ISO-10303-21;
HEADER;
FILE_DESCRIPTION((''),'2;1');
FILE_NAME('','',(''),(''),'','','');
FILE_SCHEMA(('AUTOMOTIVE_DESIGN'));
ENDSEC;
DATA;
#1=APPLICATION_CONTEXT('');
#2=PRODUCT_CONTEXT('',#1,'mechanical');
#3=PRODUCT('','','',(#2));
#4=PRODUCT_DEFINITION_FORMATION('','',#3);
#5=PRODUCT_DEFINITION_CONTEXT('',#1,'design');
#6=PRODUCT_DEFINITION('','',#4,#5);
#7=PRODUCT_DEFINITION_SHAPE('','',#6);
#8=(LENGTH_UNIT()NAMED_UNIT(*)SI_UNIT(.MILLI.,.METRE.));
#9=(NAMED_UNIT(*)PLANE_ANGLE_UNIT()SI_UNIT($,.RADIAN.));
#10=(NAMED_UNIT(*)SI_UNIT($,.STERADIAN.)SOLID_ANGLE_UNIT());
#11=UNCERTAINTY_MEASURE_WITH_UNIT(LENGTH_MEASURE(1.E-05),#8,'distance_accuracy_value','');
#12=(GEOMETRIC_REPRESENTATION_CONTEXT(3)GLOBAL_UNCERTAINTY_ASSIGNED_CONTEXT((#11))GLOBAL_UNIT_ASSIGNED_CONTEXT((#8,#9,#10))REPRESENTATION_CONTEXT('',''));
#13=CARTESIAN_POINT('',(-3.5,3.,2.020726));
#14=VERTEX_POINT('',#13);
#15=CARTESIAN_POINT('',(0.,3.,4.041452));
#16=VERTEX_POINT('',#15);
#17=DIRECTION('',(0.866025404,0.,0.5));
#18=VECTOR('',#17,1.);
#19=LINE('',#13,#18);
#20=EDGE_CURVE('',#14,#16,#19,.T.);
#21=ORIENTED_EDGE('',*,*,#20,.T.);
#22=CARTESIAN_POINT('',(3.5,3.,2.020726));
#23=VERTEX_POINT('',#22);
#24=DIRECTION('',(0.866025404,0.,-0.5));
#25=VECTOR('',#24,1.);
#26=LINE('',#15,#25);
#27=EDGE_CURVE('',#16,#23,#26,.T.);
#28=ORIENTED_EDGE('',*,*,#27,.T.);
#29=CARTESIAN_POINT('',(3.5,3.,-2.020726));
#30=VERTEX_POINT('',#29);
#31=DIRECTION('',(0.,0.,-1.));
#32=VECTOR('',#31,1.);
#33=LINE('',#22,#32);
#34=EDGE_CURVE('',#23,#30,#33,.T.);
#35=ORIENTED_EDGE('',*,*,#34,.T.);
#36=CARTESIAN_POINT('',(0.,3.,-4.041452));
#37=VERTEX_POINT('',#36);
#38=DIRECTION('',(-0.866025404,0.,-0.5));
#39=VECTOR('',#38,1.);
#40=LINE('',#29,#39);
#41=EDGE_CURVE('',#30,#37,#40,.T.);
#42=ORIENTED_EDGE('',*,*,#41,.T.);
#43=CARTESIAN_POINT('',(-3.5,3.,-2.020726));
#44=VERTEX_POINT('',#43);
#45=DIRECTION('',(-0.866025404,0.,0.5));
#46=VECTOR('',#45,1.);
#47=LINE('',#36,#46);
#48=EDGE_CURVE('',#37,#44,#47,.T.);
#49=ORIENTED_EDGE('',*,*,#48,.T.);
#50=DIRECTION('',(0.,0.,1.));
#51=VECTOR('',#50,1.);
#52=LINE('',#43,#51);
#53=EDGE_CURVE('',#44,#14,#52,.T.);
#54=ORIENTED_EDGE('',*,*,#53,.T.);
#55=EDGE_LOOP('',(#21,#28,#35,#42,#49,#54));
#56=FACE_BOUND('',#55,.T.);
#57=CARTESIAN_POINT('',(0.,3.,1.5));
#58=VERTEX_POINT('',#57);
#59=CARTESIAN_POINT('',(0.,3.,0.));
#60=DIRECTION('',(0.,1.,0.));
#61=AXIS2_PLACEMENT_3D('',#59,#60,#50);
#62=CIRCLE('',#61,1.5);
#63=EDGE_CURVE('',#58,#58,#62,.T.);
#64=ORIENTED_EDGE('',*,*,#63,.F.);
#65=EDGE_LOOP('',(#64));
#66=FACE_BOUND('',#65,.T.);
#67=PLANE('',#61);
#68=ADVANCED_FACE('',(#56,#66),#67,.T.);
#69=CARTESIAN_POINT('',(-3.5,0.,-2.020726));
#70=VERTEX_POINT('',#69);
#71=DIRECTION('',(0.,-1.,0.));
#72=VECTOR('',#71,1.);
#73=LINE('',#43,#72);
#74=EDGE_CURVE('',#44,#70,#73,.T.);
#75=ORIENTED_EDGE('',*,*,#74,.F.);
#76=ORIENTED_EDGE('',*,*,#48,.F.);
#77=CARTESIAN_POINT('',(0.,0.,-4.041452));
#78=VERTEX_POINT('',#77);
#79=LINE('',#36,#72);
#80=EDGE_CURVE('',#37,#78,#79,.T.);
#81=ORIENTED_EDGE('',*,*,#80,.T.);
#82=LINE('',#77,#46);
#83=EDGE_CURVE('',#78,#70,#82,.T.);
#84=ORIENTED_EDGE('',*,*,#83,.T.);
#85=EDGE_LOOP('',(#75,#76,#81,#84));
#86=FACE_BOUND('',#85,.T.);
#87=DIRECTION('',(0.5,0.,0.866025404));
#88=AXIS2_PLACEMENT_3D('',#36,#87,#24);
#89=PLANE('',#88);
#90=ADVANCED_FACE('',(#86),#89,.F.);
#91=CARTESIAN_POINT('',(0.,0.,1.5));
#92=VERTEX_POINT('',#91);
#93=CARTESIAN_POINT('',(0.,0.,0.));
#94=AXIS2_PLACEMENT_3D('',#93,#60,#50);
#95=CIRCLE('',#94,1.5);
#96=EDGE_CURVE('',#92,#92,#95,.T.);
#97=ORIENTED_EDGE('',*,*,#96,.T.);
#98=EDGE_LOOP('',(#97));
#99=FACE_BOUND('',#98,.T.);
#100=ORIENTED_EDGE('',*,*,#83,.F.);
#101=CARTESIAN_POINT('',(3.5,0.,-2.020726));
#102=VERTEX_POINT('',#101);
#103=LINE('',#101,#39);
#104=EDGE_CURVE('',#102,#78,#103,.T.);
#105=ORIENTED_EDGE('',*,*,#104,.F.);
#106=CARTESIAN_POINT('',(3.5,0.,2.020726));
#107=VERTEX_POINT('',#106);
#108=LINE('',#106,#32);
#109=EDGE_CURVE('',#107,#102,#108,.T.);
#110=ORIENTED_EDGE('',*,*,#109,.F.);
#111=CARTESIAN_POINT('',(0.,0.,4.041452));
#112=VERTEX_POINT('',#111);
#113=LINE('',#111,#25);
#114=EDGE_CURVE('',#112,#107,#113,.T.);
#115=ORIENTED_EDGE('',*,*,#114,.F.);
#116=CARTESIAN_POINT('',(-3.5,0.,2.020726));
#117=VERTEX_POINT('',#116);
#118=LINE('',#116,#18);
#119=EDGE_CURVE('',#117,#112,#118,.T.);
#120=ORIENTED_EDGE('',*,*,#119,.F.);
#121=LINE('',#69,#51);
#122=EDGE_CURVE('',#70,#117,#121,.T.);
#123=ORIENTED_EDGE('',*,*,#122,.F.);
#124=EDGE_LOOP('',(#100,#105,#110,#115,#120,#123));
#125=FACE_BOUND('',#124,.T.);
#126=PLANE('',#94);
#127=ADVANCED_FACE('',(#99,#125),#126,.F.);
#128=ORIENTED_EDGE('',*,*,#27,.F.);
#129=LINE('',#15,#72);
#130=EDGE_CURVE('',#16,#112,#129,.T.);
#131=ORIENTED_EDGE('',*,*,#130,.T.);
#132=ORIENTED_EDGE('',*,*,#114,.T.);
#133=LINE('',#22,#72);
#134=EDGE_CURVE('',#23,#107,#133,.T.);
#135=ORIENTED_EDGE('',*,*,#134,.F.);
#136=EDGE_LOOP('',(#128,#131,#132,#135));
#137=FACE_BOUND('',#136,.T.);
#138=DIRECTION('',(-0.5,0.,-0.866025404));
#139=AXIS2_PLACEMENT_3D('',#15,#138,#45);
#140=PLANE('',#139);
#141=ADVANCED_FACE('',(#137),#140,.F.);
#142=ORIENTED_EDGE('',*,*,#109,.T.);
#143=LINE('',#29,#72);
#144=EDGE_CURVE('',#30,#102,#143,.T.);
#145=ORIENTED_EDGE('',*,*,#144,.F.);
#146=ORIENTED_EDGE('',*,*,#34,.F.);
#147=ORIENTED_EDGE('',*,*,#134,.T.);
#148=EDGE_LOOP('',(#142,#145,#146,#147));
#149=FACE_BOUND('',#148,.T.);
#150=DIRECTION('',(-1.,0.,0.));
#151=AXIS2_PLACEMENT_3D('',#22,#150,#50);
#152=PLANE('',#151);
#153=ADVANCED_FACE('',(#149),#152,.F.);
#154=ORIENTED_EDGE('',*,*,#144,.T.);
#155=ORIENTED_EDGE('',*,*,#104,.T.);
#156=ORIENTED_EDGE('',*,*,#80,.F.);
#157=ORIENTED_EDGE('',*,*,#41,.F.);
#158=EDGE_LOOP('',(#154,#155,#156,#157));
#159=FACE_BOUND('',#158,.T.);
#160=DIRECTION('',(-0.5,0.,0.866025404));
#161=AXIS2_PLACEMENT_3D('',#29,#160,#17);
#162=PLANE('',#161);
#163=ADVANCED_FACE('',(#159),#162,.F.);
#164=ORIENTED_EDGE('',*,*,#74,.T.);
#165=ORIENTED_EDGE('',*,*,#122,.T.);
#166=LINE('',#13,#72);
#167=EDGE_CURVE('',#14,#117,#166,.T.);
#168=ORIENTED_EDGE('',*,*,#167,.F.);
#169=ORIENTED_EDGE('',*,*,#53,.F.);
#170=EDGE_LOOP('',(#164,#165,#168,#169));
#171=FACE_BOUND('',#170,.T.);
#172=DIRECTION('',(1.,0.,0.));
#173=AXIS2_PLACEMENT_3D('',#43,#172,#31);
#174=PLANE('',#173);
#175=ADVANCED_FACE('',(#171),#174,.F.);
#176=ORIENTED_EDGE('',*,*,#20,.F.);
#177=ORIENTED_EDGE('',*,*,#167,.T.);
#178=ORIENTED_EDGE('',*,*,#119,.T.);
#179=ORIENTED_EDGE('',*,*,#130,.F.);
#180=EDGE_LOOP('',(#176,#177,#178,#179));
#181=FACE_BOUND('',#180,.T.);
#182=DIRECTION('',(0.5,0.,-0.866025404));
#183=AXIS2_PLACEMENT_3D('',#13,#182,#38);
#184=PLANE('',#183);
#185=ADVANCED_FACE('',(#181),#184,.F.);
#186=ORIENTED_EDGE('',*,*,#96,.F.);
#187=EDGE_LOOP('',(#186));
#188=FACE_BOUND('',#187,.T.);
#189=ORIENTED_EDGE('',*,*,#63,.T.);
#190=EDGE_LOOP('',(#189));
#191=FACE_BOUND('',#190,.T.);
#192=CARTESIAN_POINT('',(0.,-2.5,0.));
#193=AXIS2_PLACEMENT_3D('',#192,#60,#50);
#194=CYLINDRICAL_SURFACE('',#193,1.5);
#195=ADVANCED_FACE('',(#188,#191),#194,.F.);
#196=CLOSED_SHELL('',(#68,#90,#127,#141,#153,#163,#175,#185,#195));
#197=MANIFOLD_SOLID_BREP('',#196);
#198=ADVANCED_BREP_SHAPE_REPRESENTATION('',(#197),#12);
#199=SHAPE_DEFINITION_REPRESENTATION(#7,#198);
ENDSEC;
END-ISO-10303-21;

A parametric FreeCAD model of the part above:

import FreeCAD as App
import Part
import Sketcher

V = App.Vector
Q = App.Units.Quantity

doc = App.newDocument("Part")
body = doc.addObject("PartDesign::Body", "Body")

# Sketch on XZ plane
sketch1 = body.newObject("Sketcher::SketchObject", "Sketch")
sketch1.AttachmentSupport = (doc.getObject("XZ_Plane"), [""])
sketch1.MapMode = "FlatFace"
sketch1.addGeometry([
    Part.LineSegment(V(0, -4, 0), V(-3.5, -2, 0)),  # 0
    Part.LineSegment(V(-3.5, -2, 0), V(-3.5, 2, 0)),  # 1
    Part.LineSegment(V(-3.5, 2, 0), V(0, 4, 0)),  # 2
    Part.LineSegment(V(0, 4, 0), V(3.5, 2, 0)),  # 3
    Part.LineSegment(V(3.5, 2, 0), V(3.5, -2, 0)),  # 4
    Part.LineSegment(V(3.5, -2, 0), V(0, -4, 0)),  # 5
], False)
sketch1.addConstraint([
    Sketcher.Constraint("Coincident", 0, 2, 1, 1),
    Sketcher.Constraint("Coincident", 1, 2, 2, 1),
    Sketcher.Constraint("Coincident", 2, 2, 3, 1),
    Sketcher.Constraint("Coincident", 3, 2, 4, 1),
    Sketcher.Constraint("Coincident", 4, 2, 5, 1),
    Sketcher.Constraint("Coincident", 5, 2, 0, 1),
    Sketcher.Constraint("Vertical", 1),
    Sketcher.Constraint("Vertical", 4),
    Sketcher.Constraint("Symmetric", 0, 2, 3, 2, -1, 1),
    Sketcher.Constraint("Symmetric", 2, 2, 5, 2, -1, 1),
    Sketcher.Constraint("PointOnObject", 2, 2, -2),
    Sketcher.Constraint("Parallel", 2, 5),
    Sketcher.Constraint("Horizontal", 1, 2, 3, 2),
    Sketcher.Constraint("Angle", 0, Q("150 deg")),
    Sketcher.Constraint("DistanceX", 1, 2, 3, 2, 7.0),
    Sketcher.Constraint("DistanceY", 1, 1, 1, 2, 4.041452),
])
pad1 = body.newObject("PartDesign::Pad", "Pad")
pad1.Profile = sketch1
pad1.Length = 3
pad1.Reversed = True

# Sketch on XZ plane
sketch2 = body.newObject("Sketcher::SketchObject", "Sketch001")
sketch2.AttachmentSupport = (doc.getObject("XZ_Plane"), [""])
sketch2.MapMode = "FlatFace"
sketch2.AttachmentOffset = App.Placement(V(0, 0, -3), App.Rotation())
sketch2.addGeometry(Part.Circle(V(0, 0, 0), V(0, 0, 1), 1.5), False)
sketch2.addConstraint([
    Sketcher.Constraint("Coincident", 0, 3, -1, 1),
    Sketcher.Constraint("Diameter", 0, 3.0),
])
pocket1 = body.newObject("PartDesign::Pocket", "Pocket")
pocket1.Profile = sketch2
pocket1.Length = 5.5
pocket1.Reversed = True

doc.recompute()
